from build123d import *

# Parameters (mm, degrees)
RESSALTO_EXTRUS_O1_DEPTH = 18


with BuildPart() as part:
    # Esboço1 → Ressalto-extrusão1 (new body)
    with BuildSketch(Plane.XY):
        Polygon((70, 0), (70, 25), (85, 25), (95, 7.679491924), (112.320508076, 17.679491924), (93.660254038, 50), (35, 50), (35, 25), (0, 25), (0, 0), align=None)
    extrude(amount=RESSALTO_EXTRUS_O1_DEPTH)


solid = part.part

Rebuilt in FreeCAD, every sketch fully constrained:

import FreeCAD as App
import Part
import Sketcher

V = App.Vector
Q = App.Units.Quantity


def add_polygon(sketch, points):
    """Adds a closed chain of lines whose ends are joined by coincident constraints."""
    first, n = sketch.GeometryCount, len(points)
    for a, b in zip(points, points[1:] + points[:1]):
        sketch.addGeometry(Part.LineSegment(App.Vector(*a, 0), App.Vector(*b, 0)), False)
    for i in range(n):
        sketch.addConstraint(Sketcher.Constraint("Coincident", first + i, 2, first + (i + 1) % n, 1))

doc = App.newDocument("Part")
body = doc.addObject("PartDesign::Body", "Body")

# Sketch on XY plane
sketch1 = body.newObject("Sketcher::SketchObject", "Sketch")
sketch1.AttachmentSupport = (doc.getObject("XY_Plane"), [""])
sketch1.MapMode = "FlatFace"
add_polygon(sketch1, [(70, 0), (70, 25), (85, 25), (95, 7.679492), (112.320508, 17.679492), (93.660254, 50), (35, 50), (35, 25), (0, 25), (0, 0)])  # lines 0-9
sketch1.addConstraint([
    Sketcher.Constraint("Vertical", 0),
    Sketcher.Constraint("Horizontal", 1),
    Sketcher.Constraint("Horizontal", 5),
    Sketcher.Constraint("Vertical", 6),
    Sketcher.Constraint("Horizontal", 7),
    Sketcher.Constraint("Vertical", 8),
    Sketcher.Constraint("Horizontal", 9),
    Sketcher.Constraint("Coincident", 8, 2, -1, 1),
    Sketcher.Constraint("Perpendicular", 2, 3),
    Sketcher.Constraint("Perpendicular", 3, 4),
    Sketcher.Constraint("Horizontal", 1, 2, 6, 2),
    Sketcher.Constraint("Equal", 0, 6),
    Sketcher.Constraint("Equal", 2, 3),
    Sketcher.Constraint("DistanceX", 1, 1, 1, 2, Q("15 mm")),
    Sketcher.Constraint("DistanceX", 7, 2, 7, 1, Q("35 mm")),
    Sketcher.Constraint("DistanceX", 9, 1, 9, 2, Q("70 mm")),
    Sketcher.Constraint("DistanceY", 0, 1, 0, 2, Q("25 mm")),
    Sketcher.Constraint("Angle", 2, Q("-60 deg")),
    Sketcher.Constraint("Distance", 2, Q("20 mm")),
])
pad1 = body.newObject("PartDesign::Pad", "Pad")
pad1.Profile = sketch1
pad1.Length = 18

doc.recompute()
